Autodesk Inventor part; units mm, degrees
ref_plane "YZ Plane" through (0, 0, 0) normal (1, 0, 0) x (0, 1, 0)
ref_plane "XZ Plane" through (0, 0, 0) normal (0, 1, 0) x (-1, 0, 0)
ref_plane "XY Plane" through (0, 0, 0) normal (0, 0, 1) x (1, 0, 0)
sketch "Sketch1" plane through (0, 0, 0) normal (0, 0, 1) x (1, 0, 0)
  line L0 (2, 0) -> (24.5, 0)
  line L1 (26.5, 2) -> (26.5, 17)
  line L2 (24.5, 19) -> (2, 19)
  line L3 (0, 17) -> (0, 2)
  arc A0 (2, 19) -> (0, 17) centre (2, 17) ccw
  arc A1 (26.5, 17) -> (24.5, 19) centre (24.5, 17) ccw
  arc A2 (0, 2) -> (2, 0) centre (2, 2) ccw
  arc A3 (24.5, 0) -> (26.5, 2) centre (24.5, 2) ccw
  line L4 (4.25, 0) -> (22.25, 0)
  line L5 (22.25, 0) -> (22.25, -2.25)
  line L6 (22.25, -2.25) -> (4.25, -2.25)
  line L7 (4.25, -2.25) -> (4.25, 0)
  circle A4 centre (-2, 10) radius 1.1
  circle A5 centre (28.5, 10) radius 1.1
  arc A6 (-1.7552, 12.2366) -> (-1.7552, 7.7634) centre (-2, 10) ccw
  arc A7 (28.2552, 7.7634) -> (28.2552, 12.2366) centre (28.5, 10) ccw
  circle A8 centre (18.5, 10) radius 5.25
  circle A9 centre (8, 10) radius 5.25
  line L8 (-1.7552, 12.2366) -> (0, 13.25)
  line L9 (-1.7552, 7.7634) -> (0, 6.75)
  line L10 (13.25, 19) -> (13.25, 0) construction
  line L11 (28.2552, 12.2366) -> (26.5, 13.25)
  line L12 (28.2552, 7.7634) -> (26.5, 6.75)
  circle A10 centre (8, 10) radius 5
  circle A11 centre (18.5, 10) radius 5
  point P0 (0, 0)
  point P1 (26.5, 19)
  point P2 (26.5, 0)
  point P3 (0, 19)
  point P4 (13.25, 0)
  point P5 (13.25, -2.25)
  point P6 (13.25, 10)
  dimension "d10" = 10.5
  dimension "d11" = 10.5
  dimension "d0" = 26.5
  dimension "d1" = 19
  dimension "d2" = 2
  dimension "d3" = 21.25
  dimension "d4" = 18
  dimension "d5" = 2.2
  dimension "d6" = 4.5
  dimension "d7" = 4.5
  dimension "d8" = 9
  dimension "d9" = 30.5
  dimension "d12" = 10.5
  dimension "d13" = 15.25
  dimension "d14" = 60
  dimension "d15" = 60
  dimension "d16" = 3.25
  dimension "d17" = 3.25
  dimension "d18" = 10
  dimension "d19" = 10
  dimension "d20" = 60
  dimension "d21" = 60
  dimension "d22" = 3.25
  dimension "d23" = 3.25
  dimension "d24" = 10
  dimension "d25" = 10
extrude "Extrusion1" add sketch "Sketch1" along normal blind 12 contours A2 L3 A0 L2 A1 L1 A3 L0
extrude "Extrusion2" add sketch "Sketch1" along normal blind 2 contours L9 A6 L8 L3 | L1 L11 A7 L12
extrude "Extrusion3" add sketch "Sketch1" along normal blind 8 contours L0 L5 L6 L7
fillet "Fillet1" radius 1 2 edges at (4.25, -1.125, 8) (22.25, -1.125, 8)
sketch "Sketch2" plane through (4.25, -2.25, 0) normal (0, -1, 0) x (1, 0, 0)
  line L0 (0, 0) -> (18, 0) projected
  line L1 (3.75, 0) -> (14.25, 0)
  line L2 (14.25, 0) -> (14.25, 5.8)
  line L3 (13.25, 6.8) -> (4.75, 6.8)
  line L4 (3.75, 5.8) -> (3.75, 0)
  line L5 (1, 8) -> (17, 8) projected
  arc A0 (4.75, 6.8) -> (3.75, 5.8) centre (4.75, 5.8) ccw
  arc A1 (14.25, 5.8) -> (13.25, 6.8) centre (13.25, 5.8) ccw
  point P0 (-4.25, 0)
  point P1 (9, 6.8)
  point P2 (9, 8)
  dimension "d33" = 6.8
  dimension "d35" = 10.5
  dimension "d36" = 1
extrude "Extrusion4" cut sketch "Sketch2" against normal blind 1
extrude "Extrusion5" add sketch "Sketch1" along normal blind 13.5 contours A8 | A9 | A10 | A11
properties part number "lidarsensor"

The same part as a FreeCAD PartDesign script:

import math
import FreeCAD as App
import Part
import Sketcher

V = App.Vector
Q = App.Units.Quantity


def edges_at(feature, points):
    """Names of the edges that pass closest to the given points."""
    edges = feature.Shape.Edges
    near = lambda p: min(range(len(edges)), key=lambda i: edges[i].distToShape(Part.Vertex(*p))[0])
    return sorted({f"Edge{near(p) + 1}" for p in points})

doc = App.newDocument("Part")
body = doc.addObject("PartDesign::Body", "Body")

# Sketch on XY plane
sketch1 = body.newObject("Sketcher::SketchObject", "Sketch")
sketch1.AttachmentSupport = (doc.getObject("XY_Plane"), [""])
sketch1.MapMode = "FlatFace"
sketch1.addGeometry([
    Part.ArcOfCircle(Part.Circle(V(2, 2, 0), V(0, 0, 1), 2), math.radians(180), math.radians(270)),  # 0
    Part.LineSegment(V(2, 0, 0), V(24.5, 0, 0)),  # 1
    Part.ArcOfCircle(Part.Circle(V(24.5, 2, 0), V(0, 0, 1), 2), math.radians(-90), math.radians(0)),  # 2
    Part.LineSegment(V(26.5, 2, 0), V(26.5, 17, 0)),  # 3
    Part.ArcOfCircle(Part.Circle(V(24.5, 17, 0), V(0, 0, 1), 2), math.radians(0), math.radians(90)),  # 4
    Part.LineSegment(V(24.5, 19, 0), V(2, 19, 0)),  # 5
    Part.ArcOfCircle(Part.Circle(V(2, 17, 0), V(0, 0, 1), 2), math.radians(90), math.radians(180)),  # 6
    Part.LineSegment(V(0, 17, 0), V(0, 2, 0)),  # 7
    Part.Circle(V(8, 10, 0), V(0, 0, 1), 5.2),  # 8
    Part.Circle(V(18.5, 10, 0), V(0, 0, 1), 5.2),  # 9
], False)
sketch1.addConstraint([
    Sketcher.Constraint("Tangent", 0, 2, 1, 1),
    Sketcher.Constraint("Tangent", 1, 2, 2, 1),
    Sketcher.Constraint("Tangent", 2, 2, 3, 1),
    Sketcher.Constraint("Tangent", 3, 2, 4, 1),
    Sketcher.Constraint("Tangent", 4, 2, 5, 1),
    Sketcher.Constraint("Tangent", 5, 2, 6, 1),
    Sketcher.Constraint("Tangent", 6, 2, 7, 1),
    Sketcher.Constraint("Tangent", 7, 2, 0, 1),
    Sketcher.Constraint("Horizontal", 1),
    Sketcher.Constraint("Vertical", 3),
    Sketcher.Constraint("Horizontal", 5),
    Sketcher.Constraint("Vertical", 7),
    Sketcher.Constraint("Equal", 0, 2),
    Sketcher.Constraint("Equal", 2, 4),
    Sketcher.Constraint("Equal", 4, 6),
    Sketcher.Constraint("Equal", 8, 9),
    Sketcher.Constraint("PointOnObject", 0, 2, -1),
    Sketcher.Constraint("PointOnObject", 6, 2, -2),
    Sketcher.Constraint("Horizontal", 8, 3, 9, 3),
    Sketcher.Constraint("Radius", 0, 2.0),
    Sketcher.Constraint("Diameter", 8, 10.5),
    Sketcher.Constraint("DistanceY", -1, 1, 8, 3, 10.0),
    Sketcher.Constraint("DistanceY", -1, 1, 4, 2, 19.0),
    Sketcher.Constraint("DistanceX", -1, 1, 2, 2, 26.5),
    Sketcher.Constraint("DistanceX", 8, 3, 9, 3, 10.5),
    Sketcher.Constraint("DistanceX", -1, 1, 8, 3, 8.0),
])
pad1 = body.newObject("PartDesign::Pad", "Pad")
pad1.Profile = sketch1
pad1.Length = 12

# Sketch on XY plane
sketch2 = body.newObject("Sketcher::SketchObject", "Sketch001")
sketch2.AttachmentSupport = (doc.getObject("XY_Plane"), [""])
sketch2.MapMode = "FlatFace"
sketch2.addGeometry([
    Part.LineSegment(V(-1.8, 7.8, 0), V(0, 6.8, 0)),  # 0
    Part.LineSegment(V(0, 6.8, 0), V(0, 13.2, 0)),  # 1
    Part.LineSegment(V(0, 13.2, 0), V(-1.8, 12.2, 0)),  # 2
    Part.ArcOfCircle(Part.Circle(V(-2, 10, 0), V(0, 0, 1), 2.2), math.radians(84), math.radians(276)),  # 3
    Part.Circle(V(-2, 10, 0), V(0, 0, 1), 1.1),  # 4
    Part.LineSegment(V(26.5, 13.2, 0), V(26.5, 6.8, 0)),  # 5
    Part.LineSegment(V(26.5, 6.8, 0), V(28.3, 7.8, 0)),  # 6
    Part.ArcOfCircle(Part.Circle(V(28.5, 10, 0), V(0, 0, 1), 2.2), math.radians(-96), math.radians(96)),  # 7
    Part.LineSegment(V(28.3, 12.2, 0), V(26.5, 13.2, 0)),  # 8
    Part.Circle(V(28.5, 10, 0), V(0, 0, 1), 1.1),  # 9
], False)
sketch2.addConstraint([
    Sketcher.Constraint("Coincident", 0, 2, 1, 1),
    Sketcher.Constraint("Coincident", 1, 2, 2, 1),
    Sketcher.Constraint("Coincident", 2, 2, 3, 1),
    Sketcher.Constraint("Coincident", 3, 2, 0, 1),
    Sketcher.Constraint("Coincident", 5, 2, 6, 1),
    Sketcher.Constraint("Coincident", 6, 2, 7, 1),
    Sketcher.Constraint("Coincident", 7, 2, 8, 1),
    Sketcher.Constraint("Coincident", 8, 2, 5, 1),
    Sketcher.Constraint("Vertical", 1),
    Sketcher.Constraint("Vertical", 5),
    Sketcher.Constraint("Coincident", 4, 3, 3, 3),
    Sketcher.Constraint("Coincident", 9, 3, 7, 3),
    Sketcher.Constraint("Equal", 3, 7),
    Sketcher.Constraint("Equal", 4, 9),
    Sketcher.Constraint("PointOnObject", 0, 2, -2),
    Sketcher.Constraint("Parallel", 2, 6),
    Sketcher.Constraint("Parallel", 0, 8),
    Sketcher.Constraint("Horizontal", 4, 3, 7, 3),
    Sketcher.Constraint("Horizontal", 0, 2, 5, 2),
    Sketcher.Constraint("Horizontal", 3, 2, 6, 2),
    Sketcher.Constraint("Horizontal", 2, 2, 7, 2),
    Sketcher.Constraint("Horizontal", 1, 2, 8, 2),
    Sketcher.Constraint("Vertical", 2, 2, 3, 2),
    Sketcher.Constraint("Diameter", 4, 2.2),
    Sketcher.Constraint("Radius", 3, 2.25),
    Sketcher.Constraint("DistanceX", 3, 3, -1, 1, 2.0),
    Sketcher.Constraint("DistanceY", -1, 1, 3, 3, 10.0),
    Sketcher.Constraint("DistanceX", -1, 1, 5, 2, 26.5),
    Sketcher.Constraint("Angle", 0, Q("-30.0009 deg")),
    Sketcher.Constraint("DistanceY", 0, 2, 3, 3, 3.25),
])
pad2 = body.newObject("PartDesign::Pad", "Pad001")
pad2.Profile = sketch2
pad2.Length = 2

# Sketch on XY plane
sketch3 = body.newObject("Sketcher::SketchObject", "Sketch002")
sketch3.AttachmentSupport = (doc.getObject("XY_Plane"), [""])
sketch3.MapMode = "FlatFace"
sketch3.addGeometry([
    Part.LineSegment(V(22.2, 0, 0), V(4.2, 0, 0)),
    Part.LineSegment(V(4.2, 0, 0), V(4.2, -2.2, 0)),
    Part.LineSegment(V(4.2, -2.2, 0), V(22.2, -2.2, 0)),
    Part.LineSegment(V(22.2, -2.2, 0), V(22.2, 0, 0)),
], False)
sketch3.addConstraint([
    Sketcher.Constraint("Coincident", 0, 2, 1, 1),
    Sketcher.Constraint("Coincident", 1, 2, 2, 1),
    Sketcher.Constraint("Coincident", 2, 2, 3, 1),
    Sketcher.Constraint("Coincident", 3, 2, 0, 1),
    Sketcher.Constraint("Horizontal", 0),
    Sketcher.Constraint("Vertical", 1),
    Sketcher.Constraint("Horizontal", 2),
    Sketcher.Constraint("Vertical", 3),
    Sketcher.Constraint("PointOnObject", 0, 2, -1),
    Sketcher.Constraint("DistanceX", 0, 2, 0, 1, 18.0),
    Sketcher.Constraint("DistanceY", 1, 2, 1, 1, 2.25),
    Sketcher.Constraint("DistanceX", -1, 1, 0, 2, 4.25),
])
pad3 = body.newObject("PartDesign::Pad", "Pad002")
pad3.Profile = sketch3
pad3.Length = 8
doc.recompute()

fillet = body.newObject("PartDesign::Fillet", "Fillet")
fillet.Base = (pad3, edges_at(pad3, [(4.25, -1.125, 8), (22.25, -1.125, 8)]))
fillet.Radius = 1

# Sketch on XZ plane
sketch4 = body.newObject("Sketcher::SketchObject", "Sketch003")
sketch4.AttachmentSupport = (doc.getObject("XZ_Plane"), [""])
sketch4.MapMode = "FlatFace"
sketch4.AttachmentOffset = App.Placement(V(0, 0, 2.25), App.Rotation())
sketch4.addGeometry([
    Part.LineSegment(V(8, 5.8, 0), V(8, 0, 0)),  # 0
    Part.LineSegment(V(8, 0, 0), V(18.5, 0, 0)),  # 1
    Part.LineSegment(V(18.5, 0, 0), V(18.5, 5.8, 0)),  # 2
    Part.ArcOfCircle(Part.Circle(V(17.5, 5.8, 0), V(0, 0, 1), 1), math.radians(0), math.radians(90)),  # 3
    Part.LineSegment(V(17.5, 6.8, 0), V(9, 6.8, 0)),  # 4
    Part.ArcOfCircle(Part.Circle(V(9, 5.8, 0), V(0, 0, 1), 1), math.radians(90), math.radians(180)),  # 5
], False)
sketch4.addConstraint([
    Sketcher.Constraint("Coincident", 0, 2, 1, 1),
    Sketcher.Constraint("Coincident", 1, 2, 2, 1),
    Sketcher.Constraint("Tangent", 2, 2, 3, 1),
    Sketcher.Constraint("Tangent", 3, 2, 4, 1),
    Sketcher.Constraint("Tangent", 4, 2, 5, 1),
    Sketcher.Constraint("Tangent", 5, 2, 0, 1),
    Sketcher.Constraint("Vertical", 0),
    Sketcher.Constraint("Horizontal", 1),
    Sketcher.Constraint("Vertical", 2),
    Sketcher.Constraint("Horizontal", 4),
    Sketcher.Constraint("Equal", 3, 5),
    Sketcher.Constraint("PointOnObject", 0, 2, -1),
    Sketcher.Constraint("Radius", 3, 1.0),
    Sketcher.Constraint("DistanceX", 1, 1, 1, 2, 10.5),
    Sketcher.Constraint("DistanceY", -1, 1, 3, 2, 6.8),
    Sketcher.Constraint("DistanceX", -1, 1, 5, 3, 9.0),
])
pocket1 = body.newObject("PartDesign::Pocket", "Pocket")
pocket1.Profile = sketch4
pocket1.Length = 1

# Sketch on XY plane
sketch5 = body.newObject("Sketcher::SketchObject", "Sketch004")
sketch5.AttachmentSupport = (doc.getObject("XY_Plane"), [""])
sketch5.MapMode = "FlatFace"
sketch5.addGeometry([
    Part.Circle(V(18, 10, 0), V(0, 0, 1), 5),
    Part.Circle(V(8, 10, 0), V(0, 0, 1), 5),
], False)
sketch5.addConstraint([
    Sketcher.Constraint("Equal", 0, 1),
    Sketcher.Constraint("Horizontal", 0, 3, 1, 3),
    Sketcher.Constraint("Diameter", 0, 10.5),
    Sketcher.Constraint("DistanceY", -1, 1, 0, 3, 10.0),
    Sketcher.Constraint("DistanceX", 1, 3, 0, 3, 10.5),
    Sketcher.Constraint("DistanceX", -1, 1, 1, 3, 8.0),
])
pad4 = body.newObject("PartDesign::Pad", "Pad003")
pad4.Profile = sketch5
pad4.Length = 13.5

doc.recompute()
